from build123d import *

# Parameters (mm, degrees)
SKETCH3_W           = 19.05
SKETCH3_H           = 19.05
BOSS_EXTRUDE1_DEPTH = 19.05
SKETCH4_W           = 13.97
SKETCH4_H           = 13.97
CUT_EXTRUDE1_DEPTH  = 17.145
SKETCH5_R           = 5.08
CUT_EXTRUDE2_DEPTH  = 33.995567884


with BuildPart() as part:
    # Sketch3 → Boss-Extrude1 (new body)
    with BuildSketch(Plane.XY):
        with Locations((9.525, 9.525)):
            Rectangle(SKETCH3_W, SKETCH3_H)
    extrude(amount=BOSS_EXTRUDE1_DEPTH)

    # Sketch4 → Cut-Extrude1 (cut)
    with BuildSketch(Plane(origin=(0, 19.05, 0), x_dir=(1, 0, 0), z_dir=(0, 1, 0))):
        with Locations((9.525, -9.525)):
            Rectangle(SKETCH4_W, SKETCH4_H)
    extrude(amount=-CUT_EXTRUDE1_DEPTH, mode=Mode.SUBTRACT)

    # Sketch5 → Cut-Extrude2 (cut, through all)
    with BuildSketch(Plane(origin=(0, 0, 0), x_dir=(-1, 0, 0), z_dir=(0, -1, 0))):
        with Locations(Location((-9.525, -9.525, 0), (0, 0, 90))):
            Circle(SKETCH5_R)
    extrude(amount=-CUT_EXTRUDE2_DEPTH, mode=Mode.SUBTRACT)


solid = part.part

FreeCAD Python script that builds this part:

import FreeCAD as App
import Part
import Sketcher

V = App.Vector
Q = App.Units.Quantity

doc = App.newDocument("Part")
params = doc.addObject("Spreadsheet::Sheet", "Params")
for row, (alias, value) in enumerate([
    ("sketch1_width", "0.75 in"),
    ("pad1_length", "0.75 in"),
    ("sketch2_width", "0.55 in"),
    ("pocket1_length", "0.675 in"),
    ("sketch3_diameter", "0.4 in"),
], start=1):
    params.set(f"A{row}", alias)
    params.set(f"B{row}", "=" + value)
    params.setAlias(f"B{row}", alias)

body = doc.addObject("PartDesign::Body", "Body")

# Sketch on XY plane
sketch1 = body.newObject("Sketcher::SketchObject", "Sketch")
sketch1.AttachmentSupport = (doc.getObject("XY_Plane"), [""])
sketch1.MapMode = "FlatFace"
sketch1.addGeometry(Part.LineSegment(V(0, 19.05, 0), V(0, 0, 0)), False)
sketch1.addGeometry(Part.LineSegment(V(0, 0, 0), V(19.05, 0, 0)), False)
sketch1.addGeometry(Part.LineSegment(V(19.05, 0, 0), V(19.05, 19.05, 0)), False)
sketch1.addGeometry(Part.LineSegment(V(19.05, 19.05, 0), V(0, 19.05, 0)), False)
sketch1.addConstraint(Sketcher.Constraint("Coincident", 0, 2, 1, 1))
sketch1.addConstraint(Sketcher.Constraint("Coincident", 1, 2, 2, 1))
sketch1.addConstraint(Sketcher.Constraint("Coincident", 2, 2, 3, 1))
sketch1.addConstraint(Sketcher.Constraint("Coincident", 3, 2, 0, 1))
sketch1.addConstraint(Sketcher.Constraint("Vertical", 0))
sketch1.addConstraint(Sketcher.Constraint("Horizontal", 1))
sketch1.addConstraint(Sketcher.Constraint("Vertical", 2))
sketch1.addConstraint(Sketcher.Constraint("Horizontal", 3))
sketch1.addConstraint(Sketcher.Constraint("Coincident", 0, 2, -1, 1))
sketch1.addConstraint(Sketcher.Constraint("Equal", 3, 0))
sketch1.addConstraint(Sketcher.Constraint("DistanceX", 1, 1, 1, 2, Q("0.75 in")))
sketch1.setExpression("Constraints[10]", "Params.sketch1_width")
pad1 = body.newObject("PartDesign::Pad", "Pad")
pad1.Profile = sketch1
pad1.setExpression("Length", "Params.pad1_length")

# Sketch on XZ plane
sketch2 = body.newObject("Sketcher::SketchObject", "Sketch001")
sketch2.AttachmentSupport = (doc.getObject("XZ_Plane"), [""])
sketch2.MapMode = "FlatFace"
sketch2.AttachmentOffset = App.Placement(V(0, 0, -0.75 * 25.4), App.Rotation())
sketch2.addGeometry(Part.LineSegment(V(2.54, 2.54, 0), V(2.54, 16.51, 0)), False)
sketch2.addGeometry(Part.LineSegment(V(2.54, 16.51, 0), V(16.51, 16.51, 0)), False)
sketch2.addGeometry(Part.LineSegment(V(16.51, 16.51, 0), V(16.51, 2.54, 0)), False)
sketch2.addGeometry(Part.LineSegment(V(16.51, 2.54, 0), V(2.54, 2.54, 0)), False)
sketch2.addConstraint(Sketcher.Constraint("Coincident", 0, 2, 1, 1))
sketch2.addConstraint(Sketcher.Constraint("Coincident", 1, 2, 2, 1))
sketch2.addConstraint(Sketcher.Constraint("Coincident", 2, 2, 3, 1))
sketch2.addConstraint(Sketcher.Constraint("Coincident", 3, 2, 0, 1))
sketch2.addConstraint(Sketcher.Constraint("Vertical", 0))
sketch2.addConstraint(Sketcher.Constraint("Horizontal", 1))
sketch2.addConstraint(Sketcher.Constraint("Vertical", 2))
sketch2.addConstraint(Sketcher.Constraint("Horizontal", 3))
sketch2.addConstraint(Sketcher.Constraint("Equal", 3, 0))
sketch2.addConstraint(Sketcher.Constraint("DistanceX", 1, 1, 1, 2, Q("0.55 in")))
sketch2.addConstraint(Sketcher.Constraint("DistanceX", -1, 1, 0, 2, Q("0.1 in")))
sketch2.addConstraint(Sketcher.Constraint("DistanceY", -1, 1, 2, 2, Q("0.1 in")))
sketch2.setExpression("Constraints[9]", "Params.sketch2_width")
pocket1 = body.newObject("PartDesign::Pocket", "Pocket")
pocket1.Profile = sketch2
pocket1.setExpression("Length", "Params.pocket1_length")
pocket1.Reversed = True

# Sketch on XZ plane
sketch3 = body.newObject("Sketcher::SketchObject", "Sketch002")
sketch3.AttachmentSupport = (doc.getObject("XZ_Plane"), [""])
sketch3.MapMode = "FlatFace"
sketch3.addGeometry(Part.Circle(V(9.525, 9.525, 0), V(0, 0, 1), 5.08), False)
sketch3.addConstraint(Sketcher.Constraint("Diameter", 0, Q("0.4 in")))
sketch3.addConstraint(Sketcher.Constraint("DistanceX", -1, 1, 0, 3, Q("0.375 in")))
sketch3.addConstraint(Sketcher.Constraint("DistanceY", -1, 1, 0, 3, Q("0.375 in")))
sketch3.setExpression("Constraints[0]", "Params.sketch3_diameter")
pocket2 = body.newObject("PartDesign::Pocket", "Pocket001")
pocket2.Profile = sketch3
pocket2.Type = "ThroughAll"

doc.recompute()
